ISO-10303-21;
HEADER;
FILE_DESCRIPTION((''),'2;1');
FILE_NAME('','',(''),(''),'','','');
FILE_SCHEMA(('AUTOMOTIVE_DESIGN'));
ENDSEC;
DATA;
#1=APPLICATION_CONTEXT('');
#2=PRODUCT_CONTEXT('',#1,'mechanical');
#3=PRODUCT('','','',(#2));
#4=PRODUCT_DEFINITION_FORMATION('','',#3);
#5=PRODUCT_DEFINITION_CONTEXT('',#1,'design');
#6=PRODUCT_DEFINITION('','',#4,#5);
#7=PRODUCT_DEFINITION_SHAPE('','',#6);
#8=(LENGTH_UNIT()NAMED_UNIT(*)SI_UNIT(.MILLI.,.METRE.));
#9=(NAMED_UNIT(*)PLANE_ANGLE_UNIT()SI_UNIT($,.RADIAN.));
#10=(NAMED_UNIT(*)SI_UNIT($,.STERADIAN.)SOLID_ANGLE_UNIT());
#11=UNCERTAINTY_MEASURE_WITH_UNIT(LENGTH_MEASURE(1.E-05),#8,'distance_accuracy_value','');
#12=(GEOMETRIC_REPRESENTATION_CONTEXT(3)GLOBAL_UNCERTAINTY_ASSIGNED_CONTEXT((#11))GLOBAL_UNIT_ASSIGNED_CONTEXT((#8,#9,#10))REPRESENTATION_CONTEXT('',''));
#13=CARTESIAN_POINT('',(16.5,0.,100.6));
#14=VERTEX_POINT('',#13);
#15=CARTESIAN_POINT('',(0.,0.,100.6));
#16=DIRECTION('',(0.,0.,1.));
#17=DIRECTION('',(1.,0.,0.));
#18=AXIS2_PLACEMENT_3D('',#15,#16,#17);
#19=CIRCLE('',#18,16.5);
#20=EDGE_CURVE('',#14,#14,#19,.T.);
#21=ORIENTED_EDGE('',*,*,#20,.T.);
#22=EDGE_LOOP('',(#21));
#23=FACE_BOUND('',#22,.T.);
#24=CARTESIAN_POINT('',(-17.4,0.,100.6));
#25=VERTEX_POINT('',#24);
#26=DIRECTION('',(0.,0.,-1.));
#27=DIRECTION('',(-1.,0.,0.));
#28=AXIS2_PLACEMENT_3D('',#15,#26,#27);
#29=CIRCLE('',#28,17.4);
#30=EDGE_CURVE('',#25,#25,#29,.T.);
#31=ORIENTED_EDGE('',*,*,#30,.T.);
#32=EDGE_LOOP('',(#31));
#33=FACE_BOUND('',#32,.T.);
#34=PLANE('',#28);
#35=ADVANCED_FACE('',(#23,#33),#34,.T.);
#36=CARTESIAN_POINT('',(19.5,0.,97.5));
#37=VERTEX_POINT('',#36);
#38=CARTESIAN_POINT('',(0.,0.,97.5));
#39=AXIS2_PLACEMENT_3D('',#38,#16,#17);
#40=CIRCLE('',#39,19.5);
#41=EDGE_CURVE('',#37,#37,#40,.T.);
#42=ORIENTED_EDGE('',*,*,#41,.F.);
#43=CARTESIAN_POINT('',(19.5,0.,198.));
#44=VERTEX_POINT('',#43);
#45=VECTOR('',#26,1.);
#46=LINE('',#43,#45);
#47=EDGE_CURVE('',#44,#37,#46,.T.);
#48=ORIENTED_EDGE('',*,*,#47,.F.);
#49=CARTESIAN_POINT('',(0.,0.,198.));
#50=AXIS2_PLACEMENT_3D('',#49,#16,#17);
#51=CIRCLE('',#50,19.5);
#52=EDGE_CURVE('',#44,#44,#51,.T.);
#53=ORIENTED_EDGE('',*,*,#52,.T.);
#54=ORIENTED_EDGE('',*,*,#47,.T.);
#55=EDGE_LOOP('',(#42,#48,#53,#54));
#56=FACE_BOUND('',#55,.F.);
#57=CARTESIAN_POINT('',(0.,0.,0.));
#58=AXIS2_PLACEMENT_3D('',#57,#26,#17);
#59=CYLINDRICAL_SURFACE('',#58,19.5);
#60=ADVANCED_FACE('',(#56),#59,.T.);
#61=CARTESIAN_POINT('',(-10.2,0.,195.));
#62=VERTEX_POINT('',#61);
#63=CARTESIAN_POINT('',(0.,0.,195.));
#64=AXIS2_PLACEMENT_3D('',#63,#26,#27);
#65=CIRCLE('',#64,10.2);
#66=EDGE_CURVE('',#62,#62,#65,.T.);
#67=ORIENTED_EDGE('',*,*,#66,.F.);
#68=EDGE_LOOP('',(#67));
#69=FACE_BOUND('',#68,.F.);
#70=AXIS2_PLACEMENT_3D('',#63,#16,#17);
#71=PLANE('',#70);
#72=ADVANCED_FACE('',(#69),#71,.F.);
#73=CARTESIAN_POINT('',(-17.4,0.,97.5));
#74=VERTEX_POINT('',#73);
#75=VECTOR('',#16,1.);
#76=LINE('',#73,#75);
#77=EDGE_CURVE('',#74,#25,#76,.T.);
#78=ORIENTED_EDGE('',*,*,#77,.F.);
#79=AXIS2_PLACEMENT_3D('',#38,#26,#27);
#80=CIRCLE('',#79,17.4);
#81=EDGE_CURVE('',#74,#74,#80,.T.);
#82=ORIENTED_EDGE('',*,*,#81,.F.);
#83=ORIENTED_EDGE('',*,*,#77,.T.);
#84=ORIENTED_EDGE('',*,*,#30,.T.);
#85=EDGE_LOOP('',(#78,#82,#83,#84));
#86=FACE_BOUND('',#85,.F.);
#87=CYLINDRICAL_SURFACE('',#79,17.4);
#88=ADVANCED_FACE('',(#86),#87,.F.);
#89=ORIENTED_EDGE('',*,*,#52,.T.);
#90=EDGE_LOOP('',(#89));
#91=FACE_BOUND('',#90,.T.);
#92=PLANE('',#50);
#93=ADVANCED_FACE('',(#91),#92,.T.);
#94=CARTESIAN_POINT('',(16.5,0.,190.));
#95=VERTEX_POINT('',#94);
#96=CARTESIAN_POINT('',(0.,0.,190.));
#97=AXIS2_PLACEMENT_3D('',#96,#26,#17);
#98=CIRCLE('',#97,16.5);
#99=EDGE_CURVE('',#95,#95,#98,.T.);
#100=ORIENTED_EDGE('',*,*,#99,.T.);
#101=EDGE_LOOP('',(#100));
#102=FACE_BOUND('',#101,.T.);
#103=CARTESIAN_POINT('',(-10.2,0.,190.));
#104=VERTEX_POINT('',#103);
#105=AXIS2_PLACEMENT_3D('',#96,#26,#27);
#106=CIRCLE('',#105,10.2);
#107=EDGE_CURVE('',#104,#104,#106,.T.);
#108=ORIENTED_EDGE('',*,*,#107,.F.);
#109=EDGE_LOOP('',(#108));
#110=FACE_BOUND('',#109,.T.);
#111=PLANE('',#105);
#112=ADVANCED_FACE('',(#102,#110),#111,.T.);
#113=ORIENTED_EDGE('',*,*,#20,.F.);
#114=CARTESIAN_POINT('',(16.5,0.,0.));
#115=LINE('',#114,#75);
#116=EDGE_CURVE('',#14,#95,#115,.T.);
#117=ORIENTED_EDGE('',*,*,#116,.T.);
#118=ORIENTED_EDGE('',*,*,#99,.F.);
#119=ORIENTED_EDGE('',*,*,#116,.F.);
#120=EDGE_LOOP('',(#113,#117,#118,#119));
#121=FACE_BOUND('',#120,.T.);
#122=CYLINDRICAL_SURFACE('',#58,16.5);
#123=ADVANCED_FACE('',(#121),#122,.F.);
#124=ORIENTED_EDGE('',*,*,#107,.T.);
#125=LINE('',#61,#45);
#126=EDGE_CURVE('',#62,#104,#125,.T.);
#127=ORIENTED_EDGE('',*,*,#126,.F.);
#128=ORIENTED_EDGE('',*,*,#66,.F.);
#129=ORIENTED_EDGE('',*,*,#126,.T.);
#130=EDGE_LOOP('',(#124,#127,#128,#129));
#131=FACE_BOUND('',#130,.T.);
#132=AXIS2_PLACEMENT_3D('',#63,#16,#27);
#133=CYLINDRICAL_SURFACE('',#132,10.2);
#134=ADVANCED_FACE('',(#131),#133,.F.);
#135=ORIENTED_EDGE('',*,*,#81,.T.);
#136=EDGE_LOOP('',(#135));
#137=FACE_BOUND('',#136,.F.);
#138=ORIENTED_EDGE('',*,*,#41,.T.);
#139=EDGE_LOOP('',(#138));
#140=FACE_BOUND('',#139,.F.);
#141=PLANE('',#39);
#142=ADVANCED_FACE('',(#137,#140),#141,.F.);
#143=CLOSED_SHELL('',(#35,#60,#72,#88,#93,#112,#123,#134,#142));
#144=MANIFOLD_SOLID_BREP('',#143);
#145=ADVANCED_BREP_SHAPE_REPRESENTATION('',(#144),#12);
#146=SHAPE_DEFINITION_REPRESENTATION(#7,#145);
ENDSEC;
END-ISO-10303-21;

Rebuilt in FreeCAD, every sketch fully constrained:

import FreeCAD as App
import Part
import Sketcher

V = App.Vector
Q = App.Units.Quantity


def add_polygon(sketch, points):
    """Adds a closed chain of lines whose ends are joined by coincident constraints."""
    first, n = sketch.GeometryCount, len(points)
    for a, b in zip(points, points[1:] + points[:1]):
        sketch.addGeometry(Part.LineSegment(App.Vector(*a, 0), App.Vector(*b, 0)), False)
    for i in range(n):
        sketch.addConstraint(Sketcher.Constraint("Coincident", first + i, 2, first + (i + 1) % n, 1))

doc = App.newDocument("Part")
body = doc.addObject("PartDesign::Body", "Body")

# Sketch on XY plane
sketch1 = doc.addObject("Sketcher::SketchObject", "Sketch")
body.addObject(sketch1)
sketch1.AttachmentSupport = (doc.XY_Plane, [""])
sketch1.MapMode = "FlatFace"
sketch1.addGeometry(Part.Circle(V(0, 0, 0), V(0, 0, 1), 20), False)
sketch1.addGeometry(Part.Circle(V(0, 0, 0), V(0, 0, 1), 16), False)
sketch1.addConstraint(Sketcher.Constraint("Coincident", 0, 3, -1, 1))
sketch1.addConstraint(Sketcher.Constraint("Coincident", 1, 3, -1, 1))
sketch1.addConstraint(Sketcher.Constraint("Diameter", 0, Q("39 mm")))
sketch1.addConstraint(Sketcher.Constraint("Diameter", 1, Q("33 mm")))
pad1 = doc.addObject("PartDesign::Pad", "Pad")
body.addObject(pad1)
pad1.Profile = sketch1
pad1.Length = 195

# Sketch on XY plane
sketch2 = doc.addObject("Sketcher::SketchObject", "Sketch001")
body.addObject(sketch2)
sketch2.AttachmentSupport = (doc.XY_Plane, [""])
sketch2.MapMode = "FlatFace"
sketch2.AttachmentOffset = App.Placement(V(0, 0, 195), App.Rotation())
sketch2.addGeometry(Part.Circle(V(0, 0, 0), V(0, 0, 1), 20), False)
sketch2.addConstraint(Sketcher.Constraint("Coincident", 0, 3, -1, 1))
sketch2.addConstraint(Sketcher.Constraint("Diameter", 0, Q("39 mm")))
pad2 = doc.addObject("PartDesign::Pad", "Pad001")
body.addObject(pad2)
pad2.Profile = sketch2
pad2.Length = 3
doc.recompute()

datumplane = doc.addObject("PartDesign::Plane", "DatumPlane")
body.addObject(datumplane)
datumplane.AttachmentSupport = (doc.XY_Plane, [""])
datumplane.MapMode = "FlatFace"
datumplane.AttachmentOffset = App.Placement(V(0, 0, 97.5), App.Rotation())
mirrored = doc.addObject("PartDesign::Mirrored", "Mirrored")
body.addObject(mirrored)
mirrored.Originals = [pad2]
mirrored.MirrorPlane = (datumplane, [""])
body.Tip = mirrored

# Sketch on XY plane
sketch3 = doc.addObject("Sketcher::SketchObject", "Sketch002")
body.addObject(sketch3)
sketch3.AttachmentSupport = (doc.XY_Plane, [""])
sketch3.MapMode = "FlatFace"
sketch3.AttachmentOffset = App.Placement(V(0, 0, -3), App.Rotation())
sketch3.addGeometry(Part.Circle(V(0, 0, 0), V(0, 0, 1), 11), False)
sketch3.addConstraint(Sketcher.Constraint("Coincident", 0, 3, -1, 1))
sketch3.addConstraint(Sketcher.Constraint("Diameter", 0, Q("22 mm")))
pocket1 = doc.addObject("PartDesign::Pocket", "Pocket")
body.addObject(pocket1)
pocket1.Profile = sketch3
pocket1.Length = 10
pocket1.Reversed = True

# Sketch on YZ plane
sketch4 = doc.addObject("Sketcher::SketchObject", "Sketch003")
body.addObject(sketch4)
sketch4.AttachmentSupport = (doc.YZ_Plane, [""])
sketch4.MapMode = "FlatFace"
add_polygon(sketch4, [(-11, -3), (11, -3), (11, 0), (-11, 0)])  # lines 0-3
sketch4.addConstraint(Sketcher.Constraint("Horizontal", 0))
sketch4.addConstraint(Sketcher.Constraint("Vertical", 1))
sketch4.addConstraint(Sketcher.Constraint("Horizontal", 2))
sketch4.addConstraint(Sketcher.Constraint("Vertical", 3))
sketch4.addConstraint(Sketcher.Constraint("Symmetric", 1, 2, 2, 2, -1, 1))
sketch4.addConstraint(Sketcher.Constraint("DistanceX", 0, 1, 0, 2, Q("22 mm")))
sketch4.addConstraint(Sketcher.Constraint("DistanceY", 1, 1, 1, 2, Q("3 mm")))
pocket2 = doc.addObject("PartDesign::Pocket", "Pocket001")
body.addObject(pocket2)
pocket2.Profile = sketch4
pocket2.Type = "ThroughAll"
pocket2.Reversed = True

# Sketch on YZ plane
sketch5 = doc.addObject("Sketcher::SketchObject", "Sketch004")
body.addObject(sketch5)
sketch5.AttachmentSupport = (doc.YZ_Plane, [""])
sketch5.MapMode = "FlatFace"
add_polygon(sketch5, [(-16, 7), (-16, 0), (16, 0), (16, 7)])  # lines 0-3
sketch5.addConstraint(Sketcher.Constraint("Vertical", 0))
sketch5.addConstraint(Sketcher.Constraint("Horizontal", 1))
sketch5.addConstraint(Sketcher.Constraint("Vertical", 2))
sketch5.addConstraint(Sketcher.Constraint("Horizontal", 3))
sketch5.addConstraint(Sketcher.Constraint("PointOnObject", 0, 2, -1))
sketch5.addConstraint(Sketcher.Constraint("DistanceY", 0, 2, 0, 1, Q("7 mm")))
sketch5.addConstraint(Sketcher.Constraint("DistanceX", 1, 1, 1, 2, Q("32.5 mm")))
sketch5.addConstraint(Sketcher.Constraint("DistanceX", 0, 2, -1, 1, Q("16 mm")))
pocket3 = doc.addObject("PartDesign::Pocket", "Pocket002")
body.addObject(pocket3)
pocket3.Profile = sketch5
pocket3.Type = "ThroughAll"
pocket3.Reversed = True

# Sketch on XY plane
sketch6 = doc.addObject("Sketcher::SketchObject", "Sketch005")
body.addObject(sketch6)
sketch6.AttachmentSupport = (doc.XY_Plane, [""])
sketch6.MapMode = "FlatFace"
sketch6.AttachmentOffset = App.Placement(V(0, 0, 195), App.Rotation())
sketch6.addGeometry(Part.Circle(V(0, 0, 0), V(0, 0, 1), 20), False)
sketch6.addGeometry(Part.Circle(V(0, 0, 0), V(0, 0, 1), 10), False)
sketch6.addConstraint(Sketcher.Constraint("Coincident", 0, 3, -1, 1))
sketch6.addConstraint(Sketcher.Constraint("Coincident", 1, 3, -1, 1))
sketch6.addConstraint(Sketcher.Constraint("Diameter", 1, Q("20.4 mm")))
sketch6.addConstraint(Sketcher.Constraint("Diameter", 0, Q("39 mm")))
pad3 = doc.addObject("PartDesign::Pad", "Pad002")
body.addObject(pad3)
pad3.Profile = sketch6
pad3.Length = 5
pad3.Reversed = True

# Sketch on XY plane
sketch7 = doc.addObject("Sketcher::SketchObject", "Sketch006")
body.addObject(sketch7)
sketch7.AttachmentSupport = (doc.XY_Plane, [""])
sketch7.MapMode = "FlatFace"
sketch7.AttachmentOffset = App.Placement(V(0, 0, 97.5), App.Rotation())
sketch7.addGeometry(Part.Circle(V(0, 0, 0), V(0, 0, 1), 20), False)
sketch7.addConstraint(Sketcher.Constraint("Coincident", 0, 3, -1, 1))
sketch7.addConstraint(Sketcher.Constraint("Diameter", 0, Q("39 mm")))
pocket4 = doc.addObject("PartDesign::Pocket", "Pocket003")
body.addObject(pocket4)
pocket4.Profile = sketch7
pocket4.Type = "ThroughAll"

# Sketch on XY plane
sketch8 = doc.addObject("Sketcher::SketchObject", "Sketch007")
body.addObject(sketch8)
sketch8.AttachmentSupport = (doc.XY_Plane, [""])
sketch8.MapMode = "FlatFace"
sketch8.AttachmentOffset = App.Placement(V(0, 0, 97.5), App.Rotation())
sketch8.addGeometry(Part.Circle(V(0, 0, 0), V(0, 0, 1), 17), False)
sketch8.addGeometry(Part.Circle(V(0, 0, 0), V(0, 0, 1), 16), False)
sketch8.addConstraint(Sketcher.Constraint("Coincident", 0, 3, -1, 1))
sketch8.addConstraint(Sketcher.Constraint("Coincident", 1, 3, -1, 1))
sketch8.addConstraint(Sketcher.Constraint("Diameter", 1, Q("33 mm")))
sketch8.addConstraint(Sketcher.Constraint("Diameter", 0, Q("34.8 mm")))
pocket5 = doc.addObject("PartDesign::Pocket", "Pocket004")
body.addObject(pocket5)
pocket5.Profile = sketch8
pocket5.Length = 3.1
pocket5.Reversed = True

doc.recompute()
